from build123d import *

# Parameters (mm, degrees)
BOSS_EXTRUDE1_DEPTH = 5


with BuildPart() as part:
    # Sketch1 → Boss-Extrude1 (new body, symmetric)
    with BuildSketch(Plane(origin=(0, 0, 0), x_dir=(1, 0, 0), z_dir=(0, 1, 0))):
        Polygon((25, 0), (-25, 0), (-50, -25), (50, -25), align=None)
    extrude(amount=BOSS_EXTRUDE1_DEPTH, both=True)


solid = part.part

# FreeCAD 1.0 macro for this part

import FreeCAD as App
import Part
import Sketcher

V = App.Vector
Q = App.Units.Quantity


def add_polygon(sketch, points):
    """Adds a closed chain of lines whose ends are joined by coincident constraints."""
    first, n = sketch.GeometryCount, len(points)
    for a, b in zip(points, points[1:] + points[:1]):
        sketch.addGeometry(Part.LineSegment(App.Vector(*a, 0), App.Vector(*b, 0)), False)
    for i in range(n):
        sketch.addConstraint(Sketcher.Constraint("Coincident", first + i, 2, first + (i + 1) % n, 1))

doc = App.newDocument("Part")
body = doc.addObject("PartDesign::Body", "Body")

# Sketch on XZ plane
sketch1 = doc.addObject("Sketcher::SketchObject", "Sketch")
body.addObject(sketch1)
sketch1.AttachmentSupport = (doc.XZ_Plane, [""])
sketch1.MapMode = "FlatFace"
add_polygon(sketch1, [(25, 0), (-25, 0), (-50, 25), (50, 25)])  # lines 0-3
sketch1.addConstraint([
    Sketcher.Constraint("Horizontal", 0),
    Sketcher.Constraint("Horizontal", 2),
    Sketcher.Constraint("Symmetric", 0, 2, 3, 2, -1, 1),
    Sketcher.Constraint("Perpendicular", 1, 3),
    Sketcher.Constraint("Equal", 1, 3),
    Sketcher.Constraint("DistanceX", 0, 2, 0, 1, Q("50 mm")),
    Sketcher.Constraint("DistanceX", 2, 1, 2, 2, Q("100 mm")),
])
pad1 = doc.addObject("PartDesign::Pad", "Pad")
body.addObject(pad1)
pad1.Profile = sketch1
pad1.Length = 10
pad1.Midplane = True

doc.recompute()
